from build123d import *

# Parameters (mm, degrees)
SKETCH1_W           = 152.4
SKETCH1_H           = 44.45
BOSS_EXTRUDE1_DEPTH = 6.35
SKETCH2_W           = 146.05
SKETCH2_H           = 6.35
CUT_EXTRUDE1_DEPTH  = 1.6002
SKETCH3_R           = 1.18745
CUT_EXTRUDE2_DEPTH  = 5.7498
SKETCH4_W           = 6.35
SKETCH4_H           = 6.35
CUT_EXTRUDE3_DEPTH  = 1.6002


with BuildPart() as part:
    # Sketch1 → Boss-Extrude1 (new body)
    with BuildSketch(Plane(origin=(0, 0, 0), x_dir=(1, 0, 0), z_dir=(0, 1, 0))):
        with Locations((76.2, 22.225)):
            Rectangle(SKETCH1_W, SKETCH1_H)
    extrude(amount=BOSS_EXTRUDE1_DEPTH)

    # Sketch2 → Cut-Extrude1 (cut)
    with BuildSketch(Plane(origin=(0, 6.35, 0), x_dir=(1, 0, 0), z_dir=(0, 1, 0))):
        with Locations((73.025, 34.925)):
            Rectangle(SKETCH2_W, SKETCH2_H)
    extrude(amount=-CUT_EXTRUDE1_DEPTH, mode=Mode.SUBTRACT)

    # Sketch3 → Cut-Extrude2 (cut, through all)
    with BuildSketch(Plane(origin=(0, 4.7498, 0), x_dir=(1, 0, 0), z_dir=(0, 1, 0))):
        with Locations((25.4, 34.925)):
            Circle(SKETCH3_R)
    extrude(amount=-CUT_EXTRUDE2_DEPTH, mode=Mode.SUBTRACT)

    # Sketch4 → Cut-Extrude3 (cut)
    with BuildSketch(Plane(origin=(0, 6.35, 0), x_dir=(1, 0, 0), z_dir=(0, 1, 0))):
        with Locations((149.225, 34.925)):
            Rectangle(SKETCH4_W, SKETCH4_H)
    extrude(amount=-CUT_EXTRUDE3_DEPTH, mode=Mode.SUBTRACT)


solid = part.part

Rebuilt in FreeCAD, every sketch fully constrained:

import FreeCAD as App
import Part
import Sketcher
Q = App.Units.Quantity

doc = App.newDocument("Part")
params = doc.addObject("Spreadsheet::Sheet", "Params")
for row, (alias, value) in enumerate([
    ("sketch1_width", "6 in"),
    ("sketch1_height", "1.75 in"),
    ("pad1_length", "0.25 in"),
    ("sketch2_width", "5.75 in"),
    ("sketch2_height", "0.25 in"),
    ("pocket1_length", "0.063 in"),
    ("sketch4_width", "0.25 in"),
    ("pocket3_length", "0.063 in"),
], start=1):
    params.set(f"A{row}", alias)
    params.set(f"B{row}", "=" + value)
    params.setAlias(f"B{row}", alias)

body = doc.addObject("PartDesign::Body", "Body")

sketch1 = body.newObject("Sketcher::SketchObject", "Sketch")
sketch1.AttachmentSupport = (doc.getObject("XZ_Plane"), [""])
sketch1.MapMode = "FlatFace"
sketch1.addGeometry([
    Part.LineSegment(App.Vector(0, -44, 0), App.Vector(0, 0, 0)),
    Part.LineSegment(App.Vector(0, 0, 0), App.Vector(152, 0, 0)),
    Part.LineSegment(App.Vector(152, 0, 0), App.Vector(152, -44, 0)),
    Part.LineSegment(App.Vector(152, -44, 0), App.Vector(0, -44, 0)),
], False)
sketch1.addConstraint([
    Sketcher.Constraint("Coincident", 0, 2, 1, 1),
    Sketcher.Constraint("Coincident", 1, 2, 2, 1),
    Sketcher.Constraint("Coincident", 2, 2, 3, 1),
    Sketcher.Constraint("Coincident", 3, 2, 0, 1),
    Sketcher.Constraint("Vertical", 0),
    Sketcher.Constraint("Horizontal", 1),
    Sketcher.Constraint("Vertical", 2),
    Sketcher.Constraint("Horizontal", 3),
    Sketcher.Constraint("Coincident", 0, 2, -1, 1),
    Sketcher.Constraint("DistanceX", 1, 1, 1, 2, Q("6 in")),
    Sketcher.Constraint("DistanceY", 0, 1, 0, 2, Q("1.75 in")),
])
sketch1.setExpression("Constraints[9]", "Params.sketch1_width")
sketch1.setExpression("Constraints[10]", "Params.sketch1_height")
pad1 = body.newObject("PartDesign::Pad", "Pad")
pad1.Profile = sketch1
pad1.setExpression("Length", "Params.pad1_length")
pad1.Reversed = True

sketch2 = body.newObject("Sketcher::SketchObject", "Sketch001")
sketch2.AttachmentSupport = (doc.getObject("XZ_Plane"), [""])
sketch2.MapMode = "FlatFace"
sketch2.AttachmentOffset = App.Placement(App.Vector(0, 0, -0.25 * 25.4), App.Rotation())
sketch2.addGeometry([
    Part.LineSegment(App.Vector(0, -38, 0), App.Vector(0, -32, 0)),
    Part.LineSegment(App.Vector(0, -32, 0), App.Vector(146, -32, 0)),
    Part.LineSegment(App.Vector(146, -32, 0), App.Vector(146, -38, 0)),
    Part.LineSegment(App.Vector(146, -38, 0), App.Vector(0, -38, 0)),
], False)
sketch2.addConstraint([
    Sketcher.Constraint("Coincident", 0, 2, 1, 1),
    Sketcher.Constraint("Coincident", 1, 2, 2, 1),
    Sketcher.Constraint("Coincident", 2, 2, 3, 1),
    Sketcher.Constraint("Coincident", 3, 2, 0, 1),
    Sketcher.Constraint("Vertical", 0),
    Sketcher.Constraint("Horizontal", 1),
    Sketcher.Constraint("Vertical", 2),
    Sketcher.Constraint("Horizontal", 3),
    Sketcher.Constraint("PointOnObject", 0, 2, -2),
    Sketcher.Constraint("DistanceX", 1, 1, 1, 2, Q("5.75 in")),
    Sketcher.Constraint("DistanceY", 0, 1, 0, 2, Q("0.25 in")),
    Sketcher.Constraint("DistanceY", 2, 2, -1, 1, Q("1.5 in")),
])
sketch2.setExpression("Constraints[9]", "Params.sketch2_width")
sketch2.setExpression("Constraints[10]", "Params.sketch2_height")
pocket1 = body.newObject("PartDesign::Pocket", "Pocket")
pocket1.Profile = sketch2
pocket1.setExpression("Length", "Params.pocket1_length")
pocket1.Reversed = True

sketch3 = body.newObject("Sketcher::SketchObject", "Sketch002")
sketch3.AttachmentSupport = (doc.getObject("XZ_Plane"), [""])
sketch3.MapMode = "FlatFace"
sketch3.AttachmentOffset = App.Placement(App.Vector(0, 0, -0.187 * 25.4), App.Rotation())
sketch3.addGeometry(Part.Circle(App.Vector(25.4, -34.9, 0), App.Vector(0, 0, 1), 1.2), False)
sketch3.addConstraint([
    Sketcher.Constraint("DistanceX", -1, 1, 0, 3, Q("1 in")),
    Sketcher.Constraint("Diameter", 0, Q("0.0935 in")),
    Sketcher.Constraint("DistanceY", 0, 3, -1, 1, Q("1.375 in")),
])
pocket2 = body.newObject("PartDesign::Pocket", "Pocket001")
pocket2.Profile = sketch3
pocket2.Type = "ThroughAll"
pocket2.Reversed = True

sketch4 = body.newObject("Sketcher::SketchObject", "Sketch003")
sketch4.AttachmentSupport = (doc.getObject("XZ_Plane"), [""])
sketch4.MapMode = "FlatFace"
sketch4.AttachmentOffset = App.Placement(App.Vector(0, 0, -0.25 * 25.4), App.Rotation())
sketch4.addGeometry([
    Part.LineSegment(App.Vector(146, -38, 0), App.Vector(146, -32, 0)),
    Part.LineSegment(App.Vector(146, -32, 0), App.Vector(152, -32, 0)),
    Part.LineSegment(App.Vector(152, -32, 0), App.Vector(152, -38, 0)),
    Part.LineSegment(App.Vector(152, -38, 0), App.Vector(146, -38, 0)),
], False)
sketch4.addConstraint([
    Sketcher.Constraint("Coincident", 0, 2, 1, 1),
    Sketcher.Constraint("Coincident", 1, 2, 2, 1),
    Sketcher.Constraint("Coincident", 2, 2, 3, 1),
    Sketcher.Constraint("Coincident", 3, 2, 0, 1),
    Sketcher.Constraint("Vertical", 0),
    Sketcher.Constraint("Horizontal", 1),
    Sketcher.Constraint("Vertical", 2),
    Sketcher.Constraint("Horizontal", 3),
    Sketcher.Constraint("Equal", 3, 0),
    Sketcher.Constraint("DistanceX", -1, 1, 1, 2, Q("6 in")),
    Sketcher.Constraint("DistanceX", 1, 1, 1, 2, Q("0.25 in")),
    Sketcher.Constraint("DistanceY", 2, 2, -1, 1, Q("1.5 in")),
])
sketch4.setExpression("Constraints[10]", "Params.sketch4_width")
pocket3 = body.newObject("PartDesign::Pocket", "Pocket002")
pocket3.Profile = sketch4
pocket3.setExpression("Length", "Params.pocket3_length")
pocket3.Reversed = True

doc.recompute()
